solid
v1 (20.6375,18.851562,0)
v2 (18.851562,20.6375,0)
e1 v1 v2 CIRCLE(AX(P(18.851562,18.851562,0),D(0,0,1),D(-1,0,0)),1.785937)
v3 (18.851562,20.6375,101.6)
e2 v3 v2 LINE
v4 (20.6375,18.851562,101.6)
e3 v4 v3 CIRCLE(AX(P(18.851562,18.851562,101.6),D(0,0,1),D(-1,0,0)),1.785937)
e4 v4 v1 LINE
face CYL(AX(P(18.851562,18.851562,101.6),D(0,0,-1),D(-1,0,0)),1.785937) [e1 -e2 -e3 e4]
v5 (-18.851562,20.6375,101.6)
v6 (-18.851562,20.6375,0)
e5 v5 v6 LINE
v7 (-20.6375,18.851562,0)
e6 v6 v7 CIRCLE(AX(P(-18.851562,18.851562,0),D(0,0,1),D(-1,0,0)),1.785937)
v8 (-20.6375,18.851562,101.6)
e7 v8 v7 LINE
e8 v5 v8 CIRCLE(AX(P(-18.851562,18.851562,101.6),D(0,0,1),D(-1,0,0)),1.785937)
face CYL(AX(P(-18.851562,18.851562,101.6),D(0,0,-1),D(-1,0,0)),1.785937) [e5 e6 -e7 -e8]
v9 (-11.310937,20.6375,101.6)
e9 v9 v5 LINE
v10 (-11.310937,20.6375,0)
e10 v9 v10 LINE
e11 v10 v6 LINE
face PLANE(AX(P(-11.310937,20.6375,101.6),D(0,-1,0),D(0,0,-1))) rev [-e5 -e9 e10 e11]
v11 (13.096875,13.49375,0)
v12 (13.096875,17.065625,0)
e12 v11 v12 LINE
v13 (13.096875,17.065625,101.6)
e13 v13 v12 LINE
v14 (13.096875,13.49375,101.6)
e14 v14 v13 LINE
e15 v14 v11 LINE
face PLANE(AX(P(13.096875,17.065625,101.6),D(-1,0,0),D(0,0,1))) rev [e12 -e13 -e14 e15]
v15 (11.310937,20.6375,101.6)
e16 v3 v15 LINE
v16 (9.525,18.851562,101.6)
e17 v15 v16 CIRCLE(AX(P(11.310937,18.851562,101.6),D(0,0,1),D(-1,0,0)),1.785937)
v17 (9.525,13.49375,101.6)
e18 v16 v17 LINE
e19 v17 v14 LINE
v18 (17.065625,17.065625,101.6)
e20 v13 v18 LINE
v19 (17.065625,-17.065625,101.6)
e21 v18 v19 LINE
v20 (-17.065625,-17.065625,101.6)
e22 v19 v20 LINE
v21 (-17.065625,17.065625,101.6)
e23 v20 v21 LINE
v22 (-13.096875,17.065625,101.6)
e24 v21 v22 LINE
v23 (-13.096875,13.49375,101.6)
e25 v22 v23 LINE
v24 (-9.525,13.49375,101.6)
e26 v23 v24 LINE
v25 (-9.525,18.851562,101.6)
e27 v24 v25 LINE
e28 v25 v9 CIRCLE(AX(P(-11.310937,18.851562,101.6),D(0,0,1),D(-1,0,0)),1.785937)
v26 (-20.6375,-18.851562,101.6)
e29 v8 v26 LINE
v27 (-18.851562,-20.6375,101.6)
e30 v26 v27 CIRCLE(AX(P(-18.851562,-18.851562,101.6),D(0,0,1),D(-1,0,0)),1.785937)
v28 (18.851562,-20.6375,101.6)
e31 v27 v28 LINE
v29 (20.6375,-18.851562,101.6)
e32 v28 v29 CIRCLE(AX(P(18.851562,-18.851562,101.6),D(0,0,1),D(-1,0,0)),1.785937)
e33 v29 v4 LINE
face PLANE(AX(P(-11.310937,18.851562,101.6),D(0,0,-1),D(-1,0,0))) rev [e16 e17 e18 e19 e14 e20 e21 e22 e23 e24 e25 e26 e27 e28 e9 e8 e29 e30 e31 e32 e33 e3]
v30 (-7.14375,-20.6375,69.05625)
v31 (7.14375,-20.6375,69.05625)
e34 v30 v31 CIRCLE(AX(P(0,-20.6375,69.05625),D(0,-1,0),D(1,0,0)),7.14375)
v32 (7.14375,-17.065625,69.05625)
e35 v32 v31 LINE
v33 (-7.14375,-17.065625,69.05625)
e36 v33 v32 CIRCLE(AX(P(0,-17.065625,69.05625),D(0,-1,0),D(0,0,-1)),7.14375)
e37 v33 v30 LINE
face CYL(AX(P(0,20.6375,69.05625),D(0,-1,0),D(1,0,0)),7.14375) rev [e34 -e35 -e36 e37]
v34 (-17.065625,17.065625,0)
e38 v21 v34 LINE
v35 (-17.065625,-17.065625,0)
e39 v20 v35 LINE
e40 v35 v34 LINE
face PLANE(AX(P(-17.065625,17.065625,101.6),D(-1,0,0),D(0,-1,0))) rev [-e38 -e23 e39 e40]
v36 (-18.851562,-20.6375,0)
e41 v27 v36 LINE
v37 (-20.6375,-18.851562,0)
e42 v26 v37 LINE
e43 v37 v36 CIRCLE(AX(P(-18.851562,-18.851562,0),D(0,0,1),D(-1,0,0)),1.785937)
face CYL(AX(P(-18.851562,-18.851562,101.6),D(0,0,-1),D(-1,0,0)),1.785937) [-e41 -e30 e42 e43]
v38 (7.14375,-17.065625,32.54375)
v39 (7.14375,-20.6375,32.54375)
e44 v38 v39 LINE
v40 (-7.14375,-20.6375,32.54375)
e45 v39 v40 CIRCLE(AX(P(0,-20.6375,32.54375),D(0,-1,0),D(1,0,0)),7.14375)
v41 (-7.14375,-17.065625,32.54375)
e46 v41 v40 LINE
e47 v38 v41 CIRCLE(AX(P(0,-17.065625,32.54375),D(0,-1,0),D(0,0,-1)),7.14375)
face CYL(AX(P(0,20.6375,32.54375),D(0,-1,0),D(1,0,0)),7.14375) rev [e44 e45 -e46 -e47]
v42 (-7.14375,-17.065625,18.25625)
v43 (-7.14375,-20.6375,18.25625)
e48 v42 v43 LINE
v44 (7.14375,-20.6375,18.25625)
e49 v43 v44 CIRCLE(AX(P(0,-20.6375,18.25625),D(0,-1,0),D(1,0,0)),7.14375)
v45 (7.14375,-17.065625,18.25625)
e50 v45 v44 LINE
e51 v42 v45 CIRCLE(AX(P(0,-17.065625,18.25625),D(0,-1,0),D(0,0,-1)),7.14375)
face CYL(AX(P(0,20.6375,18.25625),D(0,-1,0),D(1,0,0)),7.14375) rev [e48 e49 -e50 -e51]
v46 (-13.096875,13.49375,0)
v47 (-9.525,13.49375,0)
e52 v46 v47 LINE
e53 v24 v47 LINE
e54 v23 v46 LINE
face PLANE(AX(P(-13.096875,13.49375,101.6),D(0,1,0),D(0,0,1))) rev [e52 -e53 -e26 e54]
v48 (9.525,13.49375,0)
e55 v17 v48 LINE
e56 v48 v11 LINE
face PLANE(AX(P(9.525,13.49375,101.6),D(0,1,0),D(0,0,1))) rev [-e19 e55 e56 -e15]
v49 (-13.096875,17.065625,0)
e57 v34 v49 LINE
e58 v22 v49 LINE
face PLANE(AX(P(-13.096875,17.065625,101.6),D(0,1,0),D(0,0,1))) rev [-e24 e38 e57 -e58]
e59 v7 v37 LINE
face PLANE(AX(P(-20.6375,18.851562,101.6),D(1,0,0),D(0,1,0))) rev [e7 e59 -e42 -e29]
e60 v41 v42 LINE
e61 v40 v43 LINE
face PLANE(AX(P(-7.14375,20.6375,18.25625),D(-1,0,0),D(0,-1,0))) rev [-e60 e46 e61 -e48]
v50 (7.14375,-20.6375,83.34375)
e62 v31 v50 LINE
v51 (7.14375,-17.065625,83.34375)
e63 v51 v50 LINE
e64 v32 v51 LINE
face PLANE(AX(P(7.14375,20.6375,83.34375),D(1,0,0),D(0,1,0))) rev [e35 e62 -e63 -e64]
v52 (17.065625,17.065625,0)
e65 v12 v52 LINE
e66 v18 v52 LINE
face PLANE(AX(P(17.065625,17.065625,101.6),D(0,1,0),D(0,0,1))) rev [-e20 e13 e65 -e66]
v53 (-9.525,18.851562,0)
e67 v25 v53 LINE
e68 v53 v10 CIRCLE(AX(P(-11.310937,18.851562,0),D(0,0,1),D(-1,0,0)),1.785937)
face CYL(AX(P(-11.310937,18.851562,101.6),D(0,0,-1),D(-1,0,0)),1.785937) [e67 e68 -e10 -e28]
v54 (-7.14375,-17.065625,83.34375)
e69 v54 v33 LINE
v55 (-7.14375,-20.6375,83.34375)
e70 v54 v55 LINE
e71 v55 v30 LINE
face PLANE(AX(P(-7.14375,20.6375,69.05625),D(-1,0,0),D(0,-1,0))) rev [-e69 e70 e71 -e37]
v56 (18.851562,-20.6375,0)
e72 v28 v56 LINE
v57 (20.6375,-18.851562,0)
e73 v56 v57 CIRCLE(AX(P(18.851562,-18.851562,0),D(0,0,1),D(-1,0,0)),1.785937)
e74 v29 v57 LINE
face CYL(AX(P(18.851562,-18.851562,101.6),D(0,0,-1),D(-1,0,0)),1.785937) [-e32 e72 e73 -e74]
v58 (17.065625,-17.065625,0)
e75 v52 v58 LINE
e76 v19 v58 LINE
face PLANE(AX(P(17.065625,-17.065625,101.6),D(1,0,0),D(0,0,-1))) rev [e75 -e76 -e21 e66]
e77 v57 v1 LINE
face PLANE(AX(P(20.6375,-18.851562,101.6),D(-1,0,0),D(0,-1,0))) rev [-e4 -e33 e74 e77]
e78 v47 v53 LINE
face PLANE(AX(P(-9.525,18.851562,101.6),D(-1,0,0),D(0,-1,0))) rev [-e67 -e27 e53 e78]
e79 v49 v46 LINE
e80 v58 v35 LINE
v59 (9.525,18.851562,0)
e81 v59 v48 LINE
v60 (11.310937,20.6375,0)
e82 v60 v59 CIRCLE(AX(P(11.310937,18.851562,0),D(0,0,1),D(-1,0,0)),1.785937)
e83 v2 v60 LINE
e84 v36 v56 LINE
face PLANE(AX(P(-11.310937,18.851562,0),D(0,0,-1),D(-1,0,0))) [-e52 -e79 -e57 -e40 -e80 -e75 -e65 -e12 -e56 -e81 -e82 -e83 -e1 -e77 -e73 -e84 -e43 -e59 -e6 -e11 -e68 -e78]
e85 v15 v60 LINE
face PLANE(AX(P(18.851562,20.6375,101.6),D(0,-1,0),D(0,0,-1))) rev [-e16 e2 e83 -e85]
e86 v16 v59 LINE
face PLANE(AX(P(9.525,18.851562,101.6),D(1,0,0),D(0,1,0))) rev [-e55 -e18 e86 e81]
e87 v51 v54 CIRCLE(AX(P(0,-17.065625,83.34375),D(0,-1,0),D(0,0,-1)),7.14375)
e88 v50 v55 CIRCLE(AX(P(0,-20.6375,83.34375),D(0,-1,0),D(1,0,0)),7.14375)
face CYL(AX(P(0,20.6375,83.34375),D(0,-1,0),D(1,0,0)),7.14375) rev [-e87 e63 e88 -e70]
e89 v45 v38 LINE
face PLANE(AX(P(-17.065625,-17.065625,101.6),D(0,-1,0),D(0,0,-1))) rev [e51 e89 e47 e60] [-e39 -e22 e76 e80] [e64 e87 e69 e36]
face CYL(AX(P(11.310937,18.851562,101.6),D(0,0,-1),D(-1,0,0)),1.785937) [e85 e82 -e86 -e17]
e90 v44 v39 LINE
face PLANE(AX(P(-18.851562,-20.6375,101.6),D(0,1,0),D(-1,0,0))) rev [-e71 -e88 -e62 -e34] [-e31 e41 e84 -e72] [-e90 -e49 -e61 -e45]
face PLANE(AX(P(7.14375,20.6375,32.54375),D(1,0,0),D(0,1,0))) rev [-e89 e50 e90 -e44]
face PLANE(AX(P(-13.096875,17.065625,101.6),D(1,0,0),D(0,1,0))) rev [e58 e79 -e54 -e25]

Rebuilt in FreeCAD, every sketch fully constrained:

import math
import FreeCAD as App
import Part
import Sketcher
from FreeCAD import Vector
Q = App.Units.Quantity

doc = App.newDocument("Part")
params = doc.addObject("Spreadsheet::Sheet", "Params")
for row, (alias, value) in enumerate([
    ("sketch1_width", "0.296875 in"),
    ("sketch1_width2", "1.484375 in"),
    ("sketch1_width3", "0.140625 in"),
    ("sketch1_width4", "0.15625 in"),
    ("sketch1_width5", "1.34375 in"),
    ("pad1_length", "4 in"),
    ("sketch2_radius", "0.28125 in"),
    ("sketch2_height", "0.5625 in"),
    ("linearpattern_pitch", "2 in"),
], start=1):
    params.set(f"A{row}", alias)
    params.set(f"B{row}", "=" + value)
    params.setAlias(f"B{row}", alias)

body = doc.addObject("PartDesign::Body", "Body")

# Sketch on XY plane
sketch1 = body.newObject("Sketcher::SketchObject", "Sketch")
sketch1.AttachmentSupport = (doc.getObject("XY_Plane"), [""])
sketch1.MapMode = "FlatFace"
sketch1.addGeometry([
    Part.LineSegment(Vector(-11.3, 20.6, 0), Vector(-18.9, 20.6, 0)),  # 0
    Part.ArcOfCircle(Part.Circle(Vector(-18.9, 18.9, 0), Vector(0, 0, 1), 1.8), math.radians(90), math.radians(180)),  # 1
    Part.LineSegment(Vector(-20.6, 18.9, 0), Vector(-20.6, -18.9, 0)),  # 2
    Part.ArcOfCircle(Part.Circle(Vector(-18.9, -18.9, 0), Vector(0, 0, 1), 1.8), math.radians(180), math.radians(270)),  # 3
    Part.LineSegment(Vector(-18.9, -20.6, 0), Vector(18.9, -20.6, 0)),  # 4
    Part.ArcOfCircle(Part.Circle(Vector(18.9, -18.9, 0), Vector(0, 0, 1), 1.8), math.radians(-90), math.radians(0)),  # 5
    Part.LineSegment(Vector(20.6, -18.9, 0), Vector(20.6, 18.9, 0)),  # 6
    Part.ArcOfCircle(Part.Circle(Vector(18.9, 18.9, 0), Vector(0, 0, 1), 1.8), math.radians(0), math.radians(90)),  # 7
    Part.LineSegment(Vector(18.9, 20.6, 0), Vector(11.3, 20.6, 0)),  # 8
    Part.ArcOfCircle(Part.Circle(Vector(11.3, 18.9, 0), Vector(0, 0, 1), 1.8), math.radians(90), math.radians(180)),  # 9
    Part.LineSegment(Vector(9.5, 18.9, 0), Vector(9.5, 13.5, 0)),  # 10
    Part.LineSegment(Vector(9.5, 13.5, 0), Vector(13.1, 13.5, 0)),  # 11
    Part.LineSegment(Vector(13.1, 13.5, 0), Vector(13.1, 17.1, 0)),  # 12
    Part.LineSegment(Vector(13.1, 17.1, 0), Vector(17.1, 17.1, 0)),  # 13
    Part.LineSegment(Vector(17.1, 17.1, 0), Vector(17.1, -17.1, 0)),  # 14
    Part.LineSegment(Vector(17.1, -17.1, 0), Vector(-17.1, -17.1, 0)),  # 15
    Part.LineSegment(Vector(-17.1, -17.1, 0), Vector(-17.1, 17.1, 0)),  # 16
    Part.LineSegment(Vector(-17.1, 17.1, 0), Vector(-13.1, 17.1, 0)),  # 17
    Part.LineSegment(Vector(-13.1, 17.1, 0), Vector(-13.1, 13.5, 0)),  # 18
    Part.LineSegment(Vector(-13.1, 13.5, 0), Vector(-9.5, 13.5, 0)),  # 19
    Part.LineSegment(Vector(-9.5, 13.5, 0), Vector(-9.5, 18.9, 0)),  # 20
    Part.ArcOfCircle(Part.Circle(Vector(-11.3, 18.9, 0), Vector(0, 0, 1), 1.8), math.radians(0), math.radians(90)),  # 21
], False)
sketch1.addConstraint([
    Sketcher.Constraint("Tangent", 0, 2, 1, 1),
    Sketcher.Constraint("Tangent", 1, 2, 2, 1),
    Sketcher.Constraint("Tangent", 2, 2, 3, 1),
    Sketcher.Constraint("Tangent", 3, 2, 4, 1),
    Sketcher.Constraint("Tangent", 4, 2, 5, 1),
    Sketcher.Constraint("Tangent", 5, 2, 6, 1),
    Sketcher.Constraint("Tangent", 6, 2, 7, 1),
    Sketcher.Constraint("Tangent", 7, 2, 8, 1),
    Sketcher.Constraint("Tangent", 8, 2, 9, 1),
    Sketcher.Constraint("Tangent", 9, 2, 10, 1),
    Sketcher.Constraint("Coincident", 10, 2, 11, 1),
    Sketcher.Constraint("Coincident", 11, 2, 12, 1),
    Sketcher.Constraint("Coincident", 12, 2, 13, 1),
    Sketcher.Constraint("Coincident", 13, 2, 14, 1),
    Sketcher.Constraint("Coincident", 14, 2, 15, 1),
    Sketcher.Constraint("Coincident", 15, 2, 16, 1),
    Sketcher.Constraint("Coincident", 16, 2, 17, 1),
    Sketcher.Constraint("Coincident", 17, 2, 18, 1),
    Sketcher.Constraint("Coincident", 18, 2, 19, 1),
    Sketcher.Constraint("Coincident", 19, 2, 20, 1),
    Sketcher.Constraint("Tangent", 20, 2, 21, 1),
    Sketcher.Constraint("Tangent", 21, 2, 0, 1),
    Sketcher.Constraint("Horizontal", 0),
    Sketcher.Constraint("Vertical", 2),
    Sketcher.Constraint("Horizontal", 4),
    Sketcher.Constraint("Vertical", 6),
    Sketcher.Constraint("Horizontal", 8),
    Sketcher.Constraint("Vertical", 10),
    Sketcher.Constraint("Horizontal", 11),
    Sketcher.Constraint("Vertical", 12),
    Sketcher.Constraint("Horizontal", 13),
    Sketcher.Constraint("Vertical", 14),
    Sketcher.Constraint("Horizontal", 15),
    Sketcher.Constraint("Vertical", 16),
    Sketcher.Constraint("Horizontal", 17),
    Sketcher.Constraint("Vertical", 18),
    Sketcher.Constraint("Horizontal", 19),
    Sketcher.Constraint("Vertical", 20),
    Sketcher.Constraint("Equal", 1, 3),
    Sketcher.Constraint("Equal", 3, 5),
    Sketcher.Constraint("Equal", 5, 7),
    Sketcher.Constraint("Equal", 7, 9),
    Sketcher.Constraint("Equal", 9, 21),
    Sketcher.Constraint("Symmetric", 1, 3, 5, 3, -1, 1),
    Sketcher.Constraint("Symmetric", 13, 2, 15, 2, -1, 1),
    Sketcher.Constraint("Symmetric", 9, 3, 21, 3, -2),
    Sketcher.Constraint("Symmetric", 12, 2, 17, 2, -2),
    Sketcher.Constraint("Horizontal", 11, 2, 18, 2),
    Sketcher.Constraint("Equal", 4, 2),
    Sketcher.Constraint("Equal", 19, 12),
    Sketcher.Constraint("Equal", 15, 14),
    Sketcher.Constraint("DistanceX", 0, 2, 0, 1, Q("0.296875 in")),
    Sketcher.Constraint("DistanceX", 4, 1, 4, 2, Q("1.484375 in")),
    Sketcher.Constraint("DistanceX", 11, 1, 11, 2, Q("0.140625 in")),
    Sketcher.Constraint("DistanceX", 13, 1, 13, 2, Q("0.15625 in")),
    Sketcher.Constraint("DistanceX", 15, 2, 15, 1, Q("1.34375 in")),
])
sketch1.setExpression("Constraints[51]", "Params.sketch1_width")
sketch1.setExpression("Constraints[52]", "Params.sketch1_width2")
sketch1.setExpression("Constraints[53]", "Params.sketch1_width3")
sketch1.setExpression("Constraints[54]", "Params.sketch1_width4")
sketch1.setExpression("Constraints[55]", "Params.sketch1_width5")
pad1 = body.newObject("PartDesign::Pad", "Pad")
pad1.Profile = sketch1
pad1.setExpression("Length", "Params.pad1_length")

# Sketch on XZ plane
sketch2 = body.newObject("Sketcher::SketchObject", "Sketch001")
sketch2.AttachmentSupport = (doc.getObject("XZ_Plane"), [""])
sketch2.MapMode = "FlatFace"
sketch2.AttachmentOffset = App.Placement(Vector(0, 0, 0.8125 * 25.4), App.Rotation())
sketch2.addGeometry([
    Part.LineSegment(Vector(7, 18, 0), Vector(7, 33, 0)),
    Part.ArcOfCircle(Part.Circle(Vector(0, 33, 0), Vector(0, 0, 1), 7), math.radians(0), math.radians(180)),
    Part.LineSegment(Vector(-7, 33, 0), Vector(-7, 18, 0)),
    Part.ArcOfCircle(Part.Circle(Vector(0, 18, 0), Vector(0, 0, 1), 7), math.radians(180), math.radians(360)),
], False)
sketch2.addConstraint([
    Sketcher.Constraint("Tangent", 0, 2, 1, 1),
    Sketcher.Constraint("Tangent", 1, 2, 2, 1),
    Sketcher.Constraint("Tangent", 2, 2, 3, 1),
    Sketcher.Constraint("Tangent", 3, 2, 0, 1),
    Sketcher.Constraint("Vertical", 0),
    Sketcher.Constraint("Vertical", 2),
    Sketcher.Constraint("PointOnObject", 1, 3, -2),
    Sketcher.Constraint("Radius", 1, Q("0.28125 in")),
    Sketcher.Constraint("DistanceY", 0, 1, 0, 2, Q("0.5625 in")),
    Sketcher.Constraint("DistanceY", -1, 1, 1, 3, Q("1.28125 in")),
])
sketch2.setExpression("Constraints[7]", "Params.sketch2_radius")
sketch2.setExpression("Constraints[8]", "Params.sketch2_height")
pocket1 = body.newObject("PartDesign::Pocket", "Pocket")
pocket1.Profile = sketch2
pocket1.Type = "ThroughAll"
doc.recompute()

linearpattern = body.newObject("PartDesign::LinearPattern", "LinearPattern")
linearpattern.Originals = [pocket1]
linearpattern.Direction = (doc.getObject("Z_Axis"), [""])
linearpattern.Mode = "offset"
linearpattern.setExpression("Offset", "Params.linearpattern_pitch")
linearpattern.Occurrences = 2
body.Tip = linearpattern

doc.recompute()
